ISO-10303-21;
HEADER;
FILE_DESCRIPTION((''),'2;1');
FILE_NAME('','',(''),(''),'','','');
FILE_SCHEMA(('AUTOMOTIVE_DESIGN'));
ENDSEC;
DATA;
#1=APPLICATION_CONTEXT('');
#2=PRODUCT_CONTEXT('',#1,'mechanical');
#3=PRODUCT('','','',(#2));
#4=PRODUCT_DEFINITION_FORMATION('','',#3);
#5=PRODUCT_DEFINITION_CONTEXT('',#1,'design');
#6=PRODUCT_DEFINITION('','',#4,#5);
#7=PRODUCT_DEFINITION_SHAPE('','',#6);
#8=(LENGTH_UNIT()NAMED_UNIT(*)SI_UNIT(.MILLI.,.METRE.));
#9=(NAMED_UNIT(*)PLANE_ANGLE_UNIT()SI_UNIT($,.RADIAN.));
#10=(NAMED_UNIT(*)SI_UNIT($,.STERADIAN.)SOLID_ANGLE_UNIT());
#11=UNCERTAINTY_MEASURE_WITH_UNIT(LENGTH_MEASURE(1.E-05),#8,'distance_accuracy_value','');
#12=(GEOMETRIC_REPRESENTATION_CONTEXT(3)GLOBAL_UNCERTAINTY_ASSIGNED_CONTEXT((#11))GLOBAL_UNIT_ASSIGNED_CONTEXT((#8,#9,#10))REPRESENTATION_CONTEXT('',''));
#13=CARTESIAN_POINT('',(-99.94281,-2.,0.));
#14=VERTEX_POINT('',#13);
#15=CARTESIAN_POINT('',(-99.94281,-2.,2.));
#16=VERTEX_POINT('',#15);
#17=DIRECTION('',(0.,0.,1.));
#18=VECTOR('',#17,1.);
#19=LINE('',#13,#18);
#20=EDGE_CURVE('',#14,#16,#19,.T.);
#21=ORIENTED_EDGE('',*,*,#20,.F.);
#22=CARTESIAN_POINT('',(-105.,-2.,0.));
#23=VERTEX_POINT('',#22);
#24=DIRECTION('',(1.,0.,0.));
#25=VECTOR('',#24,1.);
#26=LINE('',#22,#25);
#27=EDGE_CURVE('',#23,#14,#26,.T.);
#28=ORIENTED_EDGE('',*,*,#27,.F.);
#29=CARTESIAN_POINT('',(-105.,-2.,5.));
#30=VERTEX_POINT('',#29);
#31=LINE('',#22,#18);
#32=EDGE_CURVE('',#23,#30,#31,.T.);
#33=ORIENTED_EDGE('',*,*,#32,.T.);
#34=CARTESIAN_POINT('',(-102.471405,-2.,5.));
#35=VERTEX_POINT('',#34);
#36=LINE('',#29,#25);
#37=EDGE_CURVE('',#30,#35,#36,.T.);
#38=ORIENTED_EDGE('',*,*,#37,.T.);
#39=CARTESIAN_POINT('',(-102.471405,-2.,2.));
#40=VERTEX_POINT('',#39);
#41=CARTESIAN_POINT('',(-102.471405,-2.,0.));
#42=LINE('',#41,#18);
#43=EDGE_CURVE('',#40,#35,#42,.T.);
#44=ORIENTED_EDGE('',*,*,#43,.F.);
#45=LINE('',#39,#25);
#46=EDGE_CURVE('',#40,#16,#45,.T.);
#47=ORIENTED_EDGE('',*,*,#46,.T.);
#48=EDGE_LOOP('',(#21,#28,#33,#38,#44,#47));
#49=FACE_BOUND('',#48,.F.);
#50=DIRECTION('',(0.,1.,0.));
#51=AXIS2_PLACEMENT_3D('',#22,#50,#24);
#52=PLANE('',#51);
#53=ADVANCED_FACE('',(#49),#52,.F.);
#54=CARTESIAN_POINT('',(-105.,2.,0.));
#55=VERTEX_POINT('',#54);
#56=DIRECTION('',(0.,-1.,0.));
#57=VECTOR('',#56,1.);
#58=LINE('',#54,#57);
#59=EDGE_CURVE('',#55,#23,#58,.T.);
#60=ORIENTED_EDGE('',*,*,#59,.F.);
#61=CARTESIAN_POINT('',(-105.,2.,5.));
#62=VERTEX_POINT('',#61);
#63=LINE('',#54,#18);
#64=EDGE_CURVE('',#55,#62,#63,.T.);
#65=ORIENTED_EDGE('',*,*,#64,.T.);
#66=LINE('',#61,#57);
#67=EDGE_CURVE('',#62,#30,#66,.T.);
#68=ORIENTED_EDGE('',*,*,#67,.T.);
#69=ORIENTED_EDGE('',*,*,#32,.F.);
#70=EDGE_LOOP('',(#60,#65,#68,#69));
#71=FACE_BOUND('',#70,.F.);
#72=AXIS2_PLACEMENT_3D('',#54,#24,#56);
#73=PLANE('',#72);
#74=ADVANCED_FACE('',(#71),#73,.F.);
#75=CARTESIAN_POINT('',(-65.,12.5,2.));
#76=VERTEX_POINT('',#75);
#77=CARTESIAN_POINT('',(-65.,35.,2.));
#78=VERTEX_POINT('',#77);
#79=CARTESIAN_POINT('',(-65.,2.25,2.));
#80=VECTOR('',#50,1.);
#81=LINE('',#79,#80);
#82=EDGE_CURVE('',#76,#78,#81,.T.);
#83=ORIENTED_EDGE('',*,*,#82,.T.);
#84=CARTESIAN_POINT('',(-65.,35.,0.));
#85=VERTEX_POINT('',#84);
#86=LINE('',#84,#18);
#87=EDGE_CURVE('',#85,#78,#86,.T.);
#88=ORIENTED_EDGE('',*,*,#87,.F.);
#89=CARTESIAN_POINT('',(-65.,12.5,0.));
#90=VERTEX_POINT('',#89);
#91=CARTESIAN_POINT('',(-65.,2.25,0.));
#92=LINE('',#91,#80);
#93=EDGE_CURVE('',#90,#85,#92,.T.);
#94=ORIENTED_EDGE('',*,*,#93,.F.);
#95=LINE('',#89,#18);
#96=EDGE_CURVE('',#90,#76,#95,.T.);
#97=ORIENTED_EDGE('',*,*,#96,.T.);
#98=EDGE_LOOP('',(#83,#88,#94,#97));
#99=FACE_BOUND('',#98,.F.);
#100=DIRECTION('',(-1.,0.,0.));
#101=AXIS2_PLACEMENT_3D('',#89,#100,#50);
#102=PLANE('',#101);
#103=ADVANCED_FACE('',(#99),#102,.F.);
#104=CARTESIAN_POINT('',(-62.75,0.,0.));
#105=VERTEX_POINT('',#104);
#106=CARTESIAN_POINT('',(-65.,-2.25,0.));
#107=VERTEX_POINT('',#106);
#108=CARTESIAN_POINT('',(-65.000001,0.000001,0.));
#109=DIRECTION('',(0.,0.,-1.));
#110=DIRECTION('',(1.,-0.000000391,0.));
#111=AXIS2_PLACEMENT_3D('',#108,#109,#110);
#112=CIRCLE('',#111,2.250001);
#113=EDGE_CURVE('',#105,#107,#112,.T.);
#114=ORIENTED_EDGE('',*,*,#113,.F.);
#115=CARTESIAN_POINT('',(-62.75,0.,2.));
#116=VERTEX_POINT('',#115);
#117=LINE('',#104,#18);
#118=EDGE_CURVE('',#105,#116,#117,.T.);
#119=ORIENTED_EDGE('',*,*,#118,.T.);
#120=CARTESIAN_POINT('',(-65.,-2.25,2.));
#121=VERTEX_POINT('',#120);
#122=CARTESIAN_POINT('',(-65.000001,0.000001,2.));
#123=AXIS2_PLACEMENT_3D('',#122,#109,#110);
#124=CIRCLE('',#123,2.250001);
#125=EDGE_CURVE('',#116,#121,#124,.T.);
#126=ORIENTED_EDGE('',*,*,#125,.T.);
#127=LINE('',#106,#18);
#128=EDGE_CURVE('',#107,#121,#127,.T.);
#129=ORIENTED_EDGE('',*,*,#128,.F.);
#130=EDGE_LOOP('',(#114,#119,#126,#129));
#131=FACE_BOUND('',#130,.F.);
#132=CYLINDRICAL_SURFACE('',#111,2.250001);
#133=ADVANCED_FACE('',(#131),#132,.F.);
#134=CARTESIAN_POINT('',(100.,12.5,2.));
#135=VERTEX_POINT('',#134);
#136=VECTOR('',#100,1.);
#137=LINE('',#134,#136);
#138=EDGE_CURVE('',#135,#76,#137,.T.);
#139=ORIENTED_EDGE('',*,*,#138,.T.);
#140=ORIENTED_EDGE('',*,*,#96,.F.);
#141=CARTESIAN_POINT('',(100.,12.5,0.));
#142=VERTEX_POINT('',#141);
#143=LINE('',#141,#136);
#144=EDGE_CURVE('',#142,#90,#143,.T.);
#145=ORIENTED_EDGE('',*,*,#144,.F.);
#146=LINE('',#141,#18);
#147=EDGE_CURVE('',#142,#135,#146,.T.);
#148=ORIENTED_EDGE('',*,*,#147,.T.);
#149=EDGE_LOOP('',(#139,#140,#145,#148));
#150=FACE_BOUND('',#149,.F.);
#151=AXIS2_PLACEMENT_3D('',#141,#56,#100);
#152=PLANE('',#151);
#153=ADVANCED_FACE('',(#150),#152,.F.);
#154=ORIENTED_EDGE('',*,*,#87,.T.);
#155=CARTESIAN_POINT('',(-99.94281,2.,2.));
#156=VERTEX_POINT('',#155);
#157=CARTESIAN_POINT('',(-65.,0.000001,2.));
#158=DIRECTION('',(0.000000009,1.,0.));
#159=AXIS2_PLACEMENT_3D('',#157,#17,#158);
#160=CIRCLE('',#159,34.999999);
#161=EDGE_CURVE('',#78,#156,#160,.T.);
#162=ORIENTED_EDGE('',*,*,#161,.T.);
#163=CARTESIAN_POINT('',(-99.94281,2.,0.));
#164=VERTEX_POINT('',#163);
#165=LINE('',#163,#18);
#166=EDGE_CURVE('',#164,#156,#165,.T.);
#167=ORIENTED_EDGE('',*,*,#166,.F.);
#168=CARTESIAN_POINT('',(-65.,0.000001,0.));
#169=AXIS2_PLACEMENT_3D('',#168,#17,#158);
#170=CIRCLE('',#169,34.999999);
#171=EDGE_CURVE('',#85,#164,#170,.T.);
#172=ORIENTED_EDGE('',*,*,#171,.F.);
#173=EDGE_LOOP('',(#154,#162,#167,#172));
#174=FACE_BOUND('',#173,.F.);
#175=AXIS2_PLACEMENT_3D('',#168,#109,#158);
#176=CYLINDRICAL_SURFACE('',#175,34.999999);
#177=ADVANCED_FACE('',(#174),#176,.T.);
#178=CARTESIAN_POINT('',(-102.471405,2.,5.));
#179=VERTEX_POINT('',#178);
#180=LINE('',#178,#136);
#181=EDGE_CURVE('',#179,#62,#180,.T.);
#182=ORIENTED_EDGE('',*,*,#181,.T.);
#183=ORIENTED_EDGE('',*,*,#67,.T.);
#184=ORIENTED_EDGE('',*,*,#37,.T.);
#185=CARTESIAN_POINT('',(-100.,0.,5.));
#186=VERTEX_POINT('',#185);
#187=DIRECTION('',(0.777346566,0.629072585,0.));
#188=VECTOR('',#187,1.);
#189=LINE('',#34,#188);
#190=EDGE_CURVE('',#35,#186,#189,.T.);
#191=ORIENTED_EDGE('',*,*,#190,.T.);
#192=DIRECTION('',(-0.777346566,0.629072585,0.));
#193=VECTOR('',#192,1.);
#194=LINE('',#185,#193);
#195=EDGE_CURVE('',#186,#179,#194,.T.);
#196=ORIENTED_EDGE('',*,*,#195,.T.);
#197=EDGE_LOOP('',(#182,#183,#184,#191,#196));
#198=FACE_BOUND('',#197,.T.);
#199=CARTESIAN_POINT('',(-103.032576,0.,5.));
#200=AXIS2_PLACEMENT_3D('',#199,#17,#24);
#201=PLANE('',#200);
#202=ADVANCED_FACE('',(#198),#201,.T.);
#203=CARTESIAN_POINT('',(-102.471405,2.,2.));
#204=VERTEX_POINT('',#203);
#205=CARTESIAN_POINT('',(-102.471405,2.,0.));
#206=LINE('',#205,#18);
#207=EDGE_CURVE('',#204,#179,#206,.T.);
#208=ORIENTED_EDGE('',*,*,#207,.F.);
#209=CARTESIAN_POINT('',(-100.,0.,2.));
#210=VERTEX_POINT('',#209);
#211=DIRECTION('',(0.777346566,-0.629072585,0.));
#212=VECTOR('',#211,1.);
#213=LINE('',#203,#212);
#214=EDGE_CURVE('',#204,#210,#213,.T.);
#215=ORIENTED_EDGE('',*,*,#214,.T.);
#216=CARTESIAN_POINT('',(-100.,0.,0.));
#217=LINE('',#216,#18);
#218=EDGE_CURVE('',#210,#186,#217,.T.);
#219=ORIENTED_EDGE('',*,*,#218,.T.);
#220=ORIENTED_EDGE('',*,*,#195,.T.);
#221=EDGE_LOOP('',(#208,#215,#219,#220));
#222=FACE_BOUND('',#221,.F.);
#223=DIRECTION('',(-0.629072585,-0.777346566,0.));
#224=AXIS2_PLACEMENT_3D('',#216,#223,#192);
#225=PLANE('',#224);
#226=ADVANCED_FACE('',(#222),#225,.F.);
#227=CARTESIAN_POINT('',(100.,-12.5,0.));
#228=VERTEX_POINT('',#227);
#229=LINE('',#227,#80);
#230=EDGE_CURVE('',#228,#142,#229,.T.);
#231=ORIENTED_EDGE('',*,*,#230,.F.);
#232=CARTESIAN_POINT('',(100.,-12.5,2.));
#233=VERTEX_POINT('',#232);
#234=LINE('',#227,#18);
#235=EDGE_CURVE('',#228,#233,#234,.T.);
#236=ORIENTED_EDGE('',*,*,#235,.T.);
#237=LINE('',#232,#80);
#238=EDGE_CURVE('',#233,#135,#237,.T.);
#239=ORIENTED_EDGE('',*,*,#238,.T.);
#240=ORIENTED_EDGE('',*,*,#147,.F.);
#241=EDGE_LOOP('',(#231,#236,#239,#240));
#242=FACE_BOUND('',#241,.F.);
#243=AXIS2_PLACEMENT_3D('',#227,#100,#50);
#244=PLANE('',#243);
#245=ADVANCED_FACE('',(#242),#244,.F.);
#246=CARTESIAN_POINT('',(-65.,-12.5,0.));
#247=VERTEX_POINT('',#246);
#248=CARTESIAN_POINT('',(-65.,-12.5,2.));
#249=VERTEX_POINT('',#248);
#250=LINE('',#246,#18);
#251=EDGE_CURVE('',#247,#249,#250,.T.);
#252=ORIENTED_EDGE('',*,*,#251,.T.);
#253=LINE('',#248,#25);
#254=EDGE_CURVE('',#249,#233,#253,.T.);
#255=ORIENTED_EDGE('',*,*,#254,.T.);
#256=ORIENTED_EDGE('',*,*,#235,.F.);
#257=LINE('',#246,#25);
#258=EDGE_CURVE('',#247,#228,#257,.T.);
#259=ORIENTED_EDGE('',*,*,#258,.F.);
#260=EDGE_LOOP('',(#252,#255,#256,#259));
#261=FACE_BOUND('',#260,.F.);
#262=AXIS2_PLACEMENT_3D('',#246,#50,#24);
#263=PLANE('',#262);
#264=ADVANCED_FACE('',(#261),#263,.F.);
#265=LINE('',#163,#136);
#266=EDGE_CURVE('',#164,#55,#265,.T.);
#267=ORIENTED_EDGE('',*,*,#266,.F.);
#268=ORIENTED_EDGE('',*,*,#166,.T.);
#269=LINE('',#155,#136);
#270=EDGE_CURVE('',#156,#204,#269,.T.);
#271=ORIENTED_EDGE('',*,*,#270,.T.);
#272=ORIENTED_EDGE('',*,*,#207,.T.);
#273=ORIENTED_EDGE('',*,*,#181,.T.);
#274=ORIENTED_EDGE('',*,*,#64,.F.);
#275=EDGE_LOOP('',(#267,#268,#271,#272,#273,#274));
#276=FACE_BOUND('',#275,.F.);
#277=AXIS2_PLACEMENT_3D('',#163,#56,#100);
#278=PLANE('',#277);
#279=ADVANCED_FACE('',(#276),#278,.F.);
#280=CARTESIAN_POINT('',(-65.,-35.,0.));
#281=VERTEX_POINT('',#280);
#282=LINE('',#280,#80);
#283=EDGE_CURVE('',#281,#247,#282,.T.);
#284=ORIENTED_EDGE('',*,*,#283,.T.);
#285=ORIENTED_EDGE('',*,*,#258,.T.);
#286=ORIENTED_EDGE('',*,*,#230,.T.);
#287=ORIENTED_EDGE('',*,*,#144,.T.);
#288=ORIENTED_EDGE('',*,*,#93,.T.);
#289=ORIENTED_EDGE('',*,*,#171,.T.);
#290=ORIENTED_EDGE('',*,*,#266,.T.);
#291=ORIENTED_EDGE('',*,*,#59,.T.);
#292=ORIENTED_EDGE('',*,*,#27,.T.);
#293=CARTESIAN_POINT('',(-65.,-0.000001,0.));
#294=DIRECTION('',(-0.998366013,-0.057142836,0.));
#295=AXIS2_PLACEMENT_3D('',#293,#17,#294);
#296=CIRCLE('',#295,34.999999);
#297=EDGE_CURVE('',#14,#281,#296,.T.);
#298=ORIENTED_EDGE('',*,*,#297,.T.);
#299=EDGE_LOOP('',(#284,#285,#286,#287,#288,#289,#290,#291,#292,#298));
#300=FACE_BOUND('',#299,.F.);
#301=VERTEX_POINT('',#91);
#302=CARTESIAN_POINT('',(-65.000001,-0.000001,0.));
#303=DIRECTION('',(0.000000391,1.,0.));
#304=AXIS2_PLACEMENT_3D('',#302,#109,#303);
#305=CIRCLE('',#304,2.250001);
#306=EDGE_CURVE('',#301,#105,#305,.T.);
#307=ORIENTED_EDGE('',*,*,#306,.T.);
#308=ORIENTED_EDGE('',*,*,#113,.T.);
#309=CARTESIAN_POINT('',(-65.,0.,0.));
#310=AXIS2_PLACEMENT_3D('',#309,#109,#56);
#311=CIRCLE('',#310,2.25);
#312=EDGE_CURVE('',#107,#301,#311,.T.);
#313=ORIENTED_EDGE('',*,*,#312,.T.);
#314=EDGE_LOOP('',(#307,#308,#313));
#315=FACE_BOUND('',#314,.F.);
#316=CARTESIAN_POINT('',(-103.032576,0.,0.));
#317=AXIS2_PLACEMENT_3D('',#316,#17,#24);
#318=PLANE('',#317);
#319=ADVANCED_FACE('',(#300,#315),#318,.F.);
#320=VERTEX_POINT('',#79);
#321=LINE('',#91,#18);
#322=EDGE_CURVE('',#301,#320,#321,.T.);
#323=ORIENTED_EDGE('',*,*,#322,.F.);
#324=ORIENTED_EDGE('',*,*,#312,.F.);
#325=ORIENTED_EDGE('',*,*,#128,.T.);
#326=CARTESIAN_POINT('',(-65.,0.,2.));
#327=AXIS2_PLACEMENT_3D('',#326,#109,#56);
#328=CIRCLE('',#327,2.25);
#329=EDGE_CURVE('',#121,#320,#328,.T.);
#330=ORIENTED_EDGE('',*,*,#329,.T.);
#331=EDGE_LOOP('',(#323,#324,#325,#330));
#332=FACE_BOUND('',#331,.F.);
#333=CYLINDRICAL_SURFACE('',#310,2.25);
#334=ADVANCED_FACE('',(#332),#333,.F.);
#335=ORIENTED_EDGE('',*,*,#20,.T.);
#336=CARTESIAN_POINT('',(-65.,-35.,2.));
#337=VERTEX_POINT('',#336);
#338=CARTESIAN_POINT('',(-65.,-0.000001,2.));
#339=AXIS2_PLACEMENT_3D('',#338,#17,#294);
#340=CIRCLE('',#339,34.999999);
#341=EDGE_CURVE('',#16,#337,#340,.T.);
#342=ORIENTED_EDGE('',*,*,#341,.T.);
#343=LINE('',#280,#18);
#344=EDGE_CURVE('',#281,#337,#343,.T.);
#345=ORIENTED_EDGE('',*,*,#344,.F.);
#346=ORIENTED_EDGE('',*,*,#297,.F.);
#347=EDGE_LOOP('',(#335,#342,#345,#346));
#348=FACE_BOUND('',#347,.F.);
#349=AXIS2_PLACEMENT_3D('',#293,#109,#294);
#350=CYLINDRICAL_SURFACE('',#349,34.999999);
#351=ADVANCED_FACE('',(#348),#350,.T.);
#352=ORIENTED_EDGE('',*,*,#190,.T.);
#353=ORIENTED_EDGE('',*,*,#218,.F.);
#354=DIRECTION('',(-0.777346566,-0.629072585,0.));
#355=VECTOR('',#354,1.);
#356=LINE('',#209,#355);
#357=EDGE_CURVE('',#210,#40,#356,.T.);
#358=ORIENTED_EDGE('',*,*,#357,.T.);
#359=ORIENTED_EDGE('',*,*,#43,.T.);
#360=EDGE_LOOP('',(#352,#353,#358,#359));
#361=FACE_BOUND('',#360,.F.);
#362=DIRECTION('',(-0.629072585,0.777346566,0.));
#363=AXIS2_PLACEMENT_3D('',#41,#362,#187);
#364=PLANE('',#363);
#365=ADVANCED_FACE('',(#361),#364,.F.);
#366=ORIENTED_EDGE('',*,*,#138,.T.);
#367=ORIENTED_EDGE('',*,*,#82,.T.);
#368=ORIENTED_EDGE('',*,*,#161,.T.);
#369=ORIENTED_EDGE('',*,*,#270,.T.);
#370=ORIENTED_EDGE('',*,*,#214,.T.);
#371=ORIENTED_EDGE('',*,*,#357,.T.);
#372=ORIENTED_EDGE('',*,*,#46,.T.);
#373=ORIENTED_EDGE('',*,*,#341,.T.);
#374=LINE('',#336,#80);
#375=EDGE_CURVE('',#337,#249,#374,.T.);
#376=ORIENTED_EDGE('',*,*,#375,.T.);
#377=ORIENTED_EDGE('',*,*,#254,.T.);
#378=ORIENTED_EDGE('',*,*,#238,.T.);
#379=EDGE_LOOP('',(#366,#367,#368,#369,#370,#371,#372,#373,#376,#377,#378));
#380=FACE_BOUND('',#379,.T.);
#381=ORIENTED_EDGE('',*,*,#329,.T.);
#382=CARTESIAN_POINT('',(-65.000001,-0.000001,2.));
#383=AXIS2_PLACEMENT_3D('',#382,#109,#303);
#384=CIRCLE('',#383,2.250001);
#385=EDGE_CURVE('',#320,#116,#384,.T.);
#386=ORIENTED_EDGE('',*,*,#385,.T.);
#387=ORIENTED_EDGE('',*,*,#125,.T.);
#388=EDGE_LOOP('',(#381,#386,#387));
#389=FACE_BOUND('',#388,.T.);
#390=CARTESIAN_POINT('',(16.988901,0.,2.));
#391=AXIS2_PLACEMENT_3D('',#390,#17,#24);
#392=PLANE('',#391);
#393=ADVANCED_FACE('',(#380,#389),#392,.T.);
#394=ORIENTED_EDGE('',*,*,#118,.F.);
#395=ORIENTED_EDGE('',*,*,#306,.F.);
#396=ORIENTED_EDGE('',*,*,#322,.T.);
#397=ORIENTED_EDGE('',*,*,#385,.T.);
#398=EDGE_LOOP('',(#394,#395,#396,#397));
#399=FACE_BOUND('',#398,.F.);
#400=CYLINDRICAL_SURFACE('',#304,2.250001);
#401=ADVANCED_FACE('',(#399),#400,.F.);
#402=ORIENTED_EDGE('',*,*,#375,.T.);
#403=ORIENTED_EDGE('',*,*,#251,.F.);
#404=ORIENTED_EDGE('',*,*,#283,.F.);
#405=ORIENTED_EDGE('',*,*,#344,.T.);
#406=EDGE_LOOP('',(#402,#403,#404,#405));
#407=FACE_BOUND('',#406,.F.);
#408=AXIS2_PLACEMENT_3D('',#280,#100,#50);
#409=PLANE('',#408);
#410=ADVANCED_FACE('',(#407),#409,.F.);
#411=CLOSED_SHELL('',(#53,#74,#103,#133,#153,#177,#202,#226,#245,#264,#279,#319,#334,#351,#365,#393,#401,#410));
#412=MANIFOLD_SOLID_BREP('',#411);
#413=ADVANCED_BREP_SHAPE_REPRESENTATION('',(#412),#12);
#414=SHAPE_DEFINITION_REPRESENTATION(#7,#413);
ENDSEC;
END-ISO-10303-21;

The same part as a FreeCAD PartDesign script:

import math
import FreeCAD as App
import Part
import Sketcher

V = App.Vector


def add_polygon(sketch, points):
    """Adds a closed chain of lines whose ends are joined by coincident constraints."""
    first, n = sketch.GeometryCount, len(points)
    for a, b in zip(points, points[1:] + points[:1]):
        sketch.addGeometry(Part.LineSegment(App.Vector(*a, 0), App.Vector(*b, 0)), False)
    for i in range(n):
        sketch.addConstraint(Sketcher.Constraint("Coincident", first + i, 2, first + (i + 1) % n, 1))

doc = App.newDocument("Part")
params = doc.addObject("Spreadsheet::Sheet", "Params")
for row, (alias, value) in enumerate([
    ("sketch1_radius", "34.999999 mm"),
    ("sketch1_width", "165 mm"),
    ("sketch1_height", "25 mm"),
    ("sketch1_radius2", "2.250001 mm"),
    ("pad1_length", "2 mm"),
    ("sketch2_height", "4 mm"),
    ("pad2_length", "5 mm"),
], start=1):
    params.set(f"A{row}", alias)
    params.set(f"B{row}", "=" + value)
    params.setAlias(f"B{row}", alias)

body = doc.addObject("PartDesign::Body", "Body")

# Sketch on XY plane
sketch1 = body.newObject("Sketcher::SketchObject", "Sketch")
sketch1.AttachmentSupport = (doc.getObject("XY_Plane"), [""])
sketch1.MapMode = "FlatFace"
sketch1.addGeometry(Part.LineSegment(V(-65, -12.5, 0), V(100, -12.5, 0)), False)
sketch1.addGeometry(Part.LineSegment(V(100, -12.5, 0), V(100, 12.5, 0)), False)
sketch1.addGeometry(Part.LineSegment(V(100, 12.5, 0), V(-65, 12.5, 0)), False)
sketch1.addGeometry(Part.LineSegment(V(-65, 12.5, 0), V(-65, 35, 0)), False)
sketch1.addGeometry(Part.ArcOfCircle(Part.Circle(V(-65, 0, 0), V(0, 0, 1), 35), math.radians(90), math.radians(177)), False)
sketch1.addGeometry(Part.LineSegment(V(-99.9, 2, 0), V(-102.5, 2, 0)), False)
sketch1.addGeometry(Part.LineSegment(V(-102.5, 2, 0), V(-100, 0, 0)), False)
sketch1.addGeometry(Part.LineSegment(V(-100, 0, 0), V(-102.5, -2, 0)), False)
sketch1.addGeometry(Part.LineSegment(V(-102.5, -2, 0), V(-99.9, -2, 0)), False)
sketch1.addGeometry(Part.ArcOfCircle(Part.Circle(V(-65, 0, 0), V(0, 0, 1), 35), math.radians(-177), math.radians(-90)), False)
sketch1.addGeometry(Part.LineSegment(V(-65, -35, 0), V(-65, -12.5, 0)), False)
sketch1.addGeometry(Part.ArcOfCircle(Part.Circle(V(-65, 0, 0), V(0, 0, 1), 2.3), math.radians(0), math.radians(90)), False)
sketch1.addGeometry(Part.ArcOfCircle(Part.Circle(V(-65, 0, 0), V(0, 0, 1), 2.3), math.radians(-90), math.radians(0)), False)
sketch1.addGeometry(Part.ArcOfCircle(Part.Circle(V(-65, 0, 0), V(0, 0, 1), 2.2), math.radians(90), math.radians(270)), False)
sketch1.addConstraint(Sketcher.Constraint("Coincident", 0, 2, 1, 1))
sketch1.addConstraint(Sketcher.Constraint("Coincident", 1, 2, 2, 1))
sketch1.addConstraint(Sketcher.Constraint("Coincident", 2, 2, 3, 1))
sketch1.addConstraint(Sketcher.Constraint("Coincident", 3, 2, 4, 1))
sketch1.addConstraint(Sketcher.Constraint("Coincident", 4, 2, 5, 1))
sketch1.addConstraint(Sketcher.Constraint("Coincident", 5, 2, 6, 1))
sketch1.addConstraint(Sketcher.Constraint("Coincident", 6, 2, 7, 1))
sketch1.addConstraint(Sketcher.Constraint("Coincident", 7, 2, 8, 1))
sketch1.addConstraint(Sketcher.Constraint("Coincident", 8, 2, 9, 1))
sketch1.addConstraint(Sketcher.Constraint("Coincident", 9, 2, 10, 1))
sketch1.addConstraint(Sketcher.Constraint("Coincident", 10, 2, 0, 1))
sketch1.addConstraint(Sketcher.Constraint("Tangent", 11, 1, 12, 2))
sketch1.addConstraint(Sketcher.Constraint("Tangent", 12, 1, 13, 2))
sketch1.addConstraint(Sketcher.Constraint("Tangent", 13, 1, 11, 2))
sketch1.addConstraint(Sketcher.Constraint("Horizontal", 0))
sketch1.addConstraint(Sketcher.Constraint("Vertical", 1))
sketch1.addConstraint(Sketcher.Constraint("Horizontal", 2))
sketch1.addConstraint(Sketcher.Constraint("Vertical", 3))
sketch1.addConstraint(Sketcher.Constraint("Horizontal", 5))
sketch1.addConstraint(Sketcher.Constraint("Horizontal", 8))
sketch1.addConstraint(Sketcher.Constraint("Vertical", 10))
sketch1.addConstraint(Sketcher.Constraint("Coincident", 9, 3, 4, 3))
sketch1.addConstraint(Sketcher.Constraint("Coincident", 11, 3, 4, 3))
sketch1.addConstraint(Sketcher.Constraint("Equal", 4, 9))
sketch1.addConstraint(Sketcher.Constraint("Symmetric", 5, 2, 7, 2, -1))
sketch1.addConstraint(Sketcher.Constraint("Symmetric", 3, 2, 9, 2, -1))
sketch1.addConstraint(Sketcher.Constraint("PointOnObject", 6, 2, -1))
sketch1.addConstraint(Sketcher.Constraint("PointOnObject", 11, 1, -1))
sketch1.addConstraint(Sketcher.Constraint("Vertical", 13, 3, 2, 2))
sketch1.addConstraint(Sketcher.Constraint("Vertical", 10, 2, 12, 1))
sketch1.addConstraint(Sketcher.Constraint("Vertical", 12, 1, 13, 1))
sketch1.addConstraint(Sketcher.Constraint("Equal", 3, 10))
sketch1.addConstraint(Sketcher.Constraint("Radius", 4, 34.999999))
sketch1.addConstraint(Sketcher.Constraint("DistanceX", 0, 1, 0, 2, 165.0))
sketch1.addConstraint(Sketcher.Constraint("DistanceY", 1, 1, 1, 2, 25.0))
sketch1.addConstraint(Sketcher.Constraint("Radius", 11, 2.250001))
sketch1.addConstraint(Sketcher.Constraint("DistanceX", 4, 3, -1, 1, 65.0))
sketch1.addConstraint(Sketcher.Constraint("DistanceY", -1, 1, 4, 2, 2.0))
sketch1.addConstraint(Sketcher.Constraint("DistanceX", 6, 2, -1, 1, 100.0))
sketch1.addConstraint(Sketcher.Constraint("DistanceX", 5, 2, 5, 1, 2.528595))
sketch1.setExpression("Constraints[32]", "Params.sketch1_radius")
sketch1.setExpression("Constraints[33]", "Params.sketch1_width")
sketch1.setExpression("Constraints[34]", "Params.sketch1_height")
sketch1.setExpression("Constraints[35]", "Params.sketch1_radius2")
pad1 = body.newObject("PartDesign::Pad", "Pad")
pad1.Profile = sketch1
pad1.setExpression("Length", "Params.pad1_length")

# Sketch on XY plane
sketch2 = body.newObject("Sketcher::SketchObject", "Sketch001")
sketch2.AttachmentSupport = (doc.getObject("XY_Plane"), [""])
sketch2.MapMode = "FlatFace"
add_polygon(sketch2, [(-102.5, -2), (-100, 0), (-102.5, 2), (-105, 2), (-105, -2)])  # lines 0-4
sketch2.addConstraint(Sketcher.Constraint("Horizontal", 2))
sketch2.addConstraint(Sketcher.Constraint("Vertical", 3))
sketch2.addConstraint(Sketcher.Constraint("Horizontal", 4))
sketch2.addConstraint(Sketcher.Constraint("Symmetric", 1, 2, 4, 2, -1))
sketch2.addConstraint(Sketcher.Constraint("PointOnObject", 0, 2, -1))
sketch2.addConstraint(Sketcher.Constraint("DistanceY", 3, 2, 3, 1, 4.0))
sketch2.addConstraint(Sketcher.Constraint("DistanceX", 0, 2, -1, 1, 100.0))
sketch2.addConstraint(Sketcher.Constraint("DistanceX", 2, 2, -1, 1, 105.0))
sketch2.addConstraint(Sketcher.Constraint("DistanceX", 2, 2, 2, 1, 2.528595))
sketch2.setExpression("Constraints[10]", "Params.sketch2_height")
pad2 = body.newObject("PartDesign::Pad", "Pad001")
pad2.Profile = sketch2
pad2.setExpression("Length", "Params.pad2_length")

doc.recompute()
